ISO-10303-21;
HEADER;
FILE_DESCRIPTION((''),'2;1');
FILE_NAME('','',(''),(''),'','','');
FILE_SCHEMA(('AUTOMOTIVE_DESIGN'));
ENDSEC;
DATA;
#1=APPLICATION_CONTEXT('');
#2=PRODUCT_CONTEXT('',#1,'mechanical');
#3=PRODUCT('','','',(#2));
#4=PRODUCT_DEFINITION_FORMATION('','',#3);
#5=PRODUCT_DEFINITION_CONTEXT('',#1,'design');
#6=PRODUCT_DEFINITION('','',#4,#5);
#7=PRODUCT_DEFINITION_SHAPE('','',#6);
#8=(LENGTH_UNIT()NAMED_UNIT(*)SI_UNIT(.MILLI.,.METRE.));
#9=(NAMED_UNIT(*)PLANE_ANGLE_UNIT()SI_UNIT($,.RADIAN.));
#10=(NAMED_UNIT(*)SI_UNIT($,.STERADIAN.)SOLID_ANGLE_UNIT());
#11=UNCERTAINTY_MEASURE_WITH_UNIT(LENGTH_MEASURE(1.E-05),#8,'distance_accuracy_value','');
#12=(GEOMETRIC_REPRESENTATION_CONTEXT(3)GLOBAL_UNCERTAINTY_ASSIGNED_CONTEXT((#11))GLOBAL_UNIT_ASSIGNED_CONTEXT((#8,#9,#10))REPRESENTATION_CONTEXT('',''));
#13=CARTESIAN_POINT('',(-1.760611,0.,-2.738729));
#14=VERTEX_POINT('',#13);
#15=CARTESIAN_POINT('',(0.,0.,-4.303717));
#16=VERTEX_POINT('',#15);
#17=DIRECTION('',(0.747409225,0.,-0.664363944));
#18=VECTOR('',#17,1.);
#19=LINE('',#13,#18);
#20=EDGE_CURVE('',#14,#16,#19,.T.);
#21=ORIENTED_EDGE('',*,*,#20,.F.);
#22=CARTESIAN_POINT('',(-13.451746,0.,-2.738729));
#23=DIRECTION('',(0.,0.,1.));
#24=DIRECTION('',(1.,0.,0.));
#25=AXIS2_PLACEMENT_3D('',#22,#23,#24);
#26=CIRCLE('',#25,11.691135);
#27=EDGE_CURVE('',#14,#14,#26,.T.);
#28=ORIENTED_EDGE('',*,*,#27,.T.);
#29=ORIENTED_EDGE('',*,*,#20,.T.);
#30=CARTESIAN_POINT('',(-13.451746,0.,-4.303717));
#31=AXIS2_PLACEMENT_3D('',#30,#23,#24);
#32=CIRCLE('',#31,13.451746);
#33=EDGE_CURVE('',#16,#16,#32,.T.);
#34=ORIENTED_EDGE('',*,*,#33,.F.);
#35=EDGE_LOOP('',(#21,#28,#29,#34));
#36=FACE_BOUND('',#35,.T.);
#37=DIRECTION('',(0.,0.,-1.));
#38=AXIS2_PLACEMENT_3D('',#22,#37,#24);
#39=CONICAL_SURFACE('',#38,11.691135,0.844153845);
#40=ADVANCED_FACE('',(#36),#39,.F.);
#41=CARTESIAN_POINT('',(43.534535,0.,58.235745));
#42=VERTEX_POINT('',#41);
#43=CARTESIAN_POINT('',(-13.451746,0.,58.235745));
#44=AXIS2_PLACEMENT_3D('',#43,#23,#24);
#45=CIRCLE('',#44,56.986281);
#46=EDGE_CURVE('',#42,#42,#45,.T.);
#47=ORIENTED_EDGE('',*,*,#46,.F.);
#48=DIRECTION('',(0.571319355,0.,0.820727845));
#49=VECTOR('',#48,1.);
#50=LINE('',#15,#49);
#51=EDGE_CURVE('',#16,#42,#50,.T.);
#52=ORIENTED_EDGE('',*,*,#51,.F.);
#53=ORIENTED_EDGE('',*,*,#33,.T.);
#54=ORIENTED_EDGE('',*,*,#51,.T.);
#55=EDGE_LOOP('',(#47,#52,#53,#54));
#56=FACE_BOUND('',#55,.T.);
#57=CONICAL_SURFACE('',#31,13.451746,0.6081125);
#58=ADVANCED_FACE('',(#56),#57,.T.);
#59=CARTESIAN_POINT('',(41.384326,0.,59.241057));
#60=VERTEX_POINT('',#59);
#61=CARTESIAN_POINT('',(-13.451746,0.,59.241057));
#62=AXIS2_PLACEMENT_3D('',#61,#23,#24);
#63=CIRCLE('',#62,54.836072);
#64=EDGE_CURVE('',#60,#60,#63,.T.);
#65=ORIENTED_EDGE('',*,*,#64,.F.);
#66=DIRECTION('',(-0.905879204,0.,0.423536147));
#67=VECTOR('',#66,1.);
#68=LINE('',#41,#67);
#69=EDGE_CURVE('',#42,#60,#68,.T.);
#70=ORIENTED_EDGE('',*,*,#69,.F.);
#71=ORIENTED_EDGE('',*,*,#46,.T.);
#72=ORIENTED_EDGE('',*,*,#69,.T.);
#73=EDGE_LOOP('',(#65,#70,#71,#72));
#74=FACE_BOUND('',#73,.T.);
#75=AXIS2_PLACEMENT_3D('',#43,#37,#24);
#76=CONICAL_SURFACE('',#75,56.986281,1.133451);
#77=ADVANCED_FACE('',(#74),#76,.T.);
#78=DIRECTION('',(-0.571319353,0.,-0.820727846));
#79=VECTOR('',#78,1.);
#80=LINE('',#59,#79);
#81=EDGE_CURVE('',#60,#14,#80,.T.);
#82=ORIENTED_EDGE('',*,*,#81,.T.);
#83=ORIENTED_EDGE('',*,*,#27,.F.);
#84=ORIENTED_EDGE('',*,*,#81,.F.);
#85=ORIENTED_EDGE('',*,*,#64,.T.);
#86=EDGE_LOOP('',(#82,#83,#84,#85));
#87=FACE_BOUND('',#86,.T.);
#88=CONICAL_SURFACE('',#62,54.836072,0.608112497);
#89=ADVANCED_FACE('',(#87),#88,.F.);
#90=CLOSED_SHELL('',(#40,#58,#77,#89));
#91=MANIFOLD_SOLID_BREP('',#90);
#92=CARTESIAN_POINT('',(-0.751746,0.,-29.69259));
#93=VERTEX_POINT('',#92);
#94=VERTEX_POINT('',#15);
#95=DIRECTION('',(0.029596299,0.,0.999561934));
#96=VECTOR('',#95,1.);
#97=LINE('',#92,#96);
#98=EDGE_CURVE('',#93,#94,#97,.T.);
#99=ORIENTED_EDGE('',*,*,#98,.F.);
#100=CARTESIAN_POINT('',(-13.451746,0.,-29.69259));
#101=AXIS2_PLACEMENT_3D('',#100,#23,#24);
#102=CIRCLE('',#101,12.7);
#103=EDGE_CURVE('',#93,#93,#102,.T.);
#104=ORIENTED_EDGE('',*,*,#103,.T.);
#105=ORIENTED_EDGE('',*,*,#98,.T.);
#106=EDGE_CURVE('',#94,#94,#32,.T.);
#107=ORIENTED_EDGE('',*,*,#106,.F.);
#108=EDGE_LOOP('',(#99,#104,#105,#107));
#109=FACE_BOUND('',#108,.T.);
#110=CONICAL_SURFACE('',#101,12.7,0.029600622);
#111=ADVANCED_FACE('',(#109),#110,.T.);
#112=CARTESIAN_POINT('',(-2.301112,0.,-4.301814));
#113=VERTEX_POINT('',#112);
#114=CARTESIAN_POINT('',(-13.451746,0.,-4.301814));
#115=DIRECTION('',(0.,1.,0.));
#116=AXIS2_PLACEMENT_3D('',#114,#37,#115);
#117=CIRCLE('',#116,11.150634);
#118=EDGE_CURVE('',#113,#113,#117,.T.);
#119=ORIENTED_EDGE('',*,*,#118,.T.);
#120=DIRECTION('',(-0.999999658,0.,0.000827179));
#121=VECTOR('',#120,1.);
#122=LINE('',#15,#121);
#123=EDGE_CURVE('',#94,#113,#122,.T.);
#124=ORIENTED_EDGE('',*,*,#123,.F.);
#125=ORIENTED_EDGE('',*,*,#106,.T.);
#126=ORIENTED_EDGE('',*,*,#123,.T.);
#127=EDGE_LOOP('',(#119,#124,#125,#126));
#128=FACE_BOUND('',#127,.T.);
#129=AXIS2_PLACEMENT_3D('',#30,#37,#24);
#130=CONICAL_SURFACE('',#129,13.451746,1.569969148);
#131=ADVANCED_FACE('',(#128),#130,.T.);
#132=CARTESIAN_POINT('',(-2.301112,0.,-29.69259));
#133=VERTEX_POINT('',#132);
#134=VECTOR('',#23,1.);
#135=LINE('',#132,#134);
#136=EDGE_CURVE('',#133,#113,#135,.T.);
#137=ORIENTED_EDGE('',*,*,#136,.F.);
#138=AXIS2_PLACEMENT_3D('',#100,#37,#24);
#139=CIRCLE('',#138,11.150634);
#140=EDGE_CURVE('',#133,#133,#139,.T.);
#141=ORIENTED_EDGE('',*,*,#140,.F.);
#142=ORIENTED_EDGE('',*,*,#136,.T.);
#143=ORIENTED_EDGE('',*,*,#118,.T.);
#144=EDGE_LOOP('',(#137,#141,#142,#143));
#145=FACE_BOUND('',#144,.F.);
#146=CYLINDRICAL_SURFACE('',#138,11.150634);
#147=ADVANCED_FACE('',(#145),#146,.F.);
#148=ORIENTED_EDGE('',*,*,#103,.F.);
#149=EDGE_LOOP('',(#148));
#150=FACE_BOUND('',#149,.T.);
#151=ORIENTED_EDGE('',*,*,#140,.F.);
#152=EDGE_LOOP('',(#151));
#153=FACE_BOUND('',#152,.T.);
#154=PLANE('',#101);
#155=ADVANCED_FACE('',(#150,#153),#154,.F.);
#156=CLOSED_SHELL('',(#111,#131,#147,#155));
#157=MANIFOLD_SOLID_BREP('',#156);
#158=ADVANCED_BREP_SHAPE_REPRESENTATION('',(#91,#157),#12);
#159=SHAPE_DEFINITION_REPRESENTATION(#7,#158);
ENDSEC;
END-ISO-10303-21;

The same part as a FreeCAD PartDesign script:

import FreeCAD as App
import Part
import Sketcher
from FreeCAD import Vector
Q = App.Units.Quantity

doc = App.newDocument("Part")
params = doc.addObject("Spreadsheet::Sheet", "Params")
for row, (alias, value) in enumerate([
    ("sketch1_height", "1 in"),
    ("sketch1_length", "1 in"),
    ("sketch1_length2", "3 in"),
    ("sketch1_width", "0.5 in"),
    ("revolution_angle", "360 deg"),
    ("pocket1_length", "1 in"),
], start=1):
    params.set(f"A{row}", alias)
    params.set(f"B{row}", "=" + value)
    params.setAlias(f"B{row}", alias)

body = doc.addObject("PartDesign::Body", "Body")
body.AllowCompound = True

sketch1 = doc.addObject("Sketcher::SketchObject", "Sketch")
body.addObject(sketch1)
sketch1.AttachmentSupport = (doc.XZ_Plane, [""])
sketch1.MapMode = "FlatFace"
sketch1.addGeometry([
    Part.LineSegment(Vector(-13.451746, -4.29259, 0), Vector(-13.451746, -29.69259, 0)),
    Part.LineSegment(Vector(-13.451746, -29.69259, 0), Vector(-0.751746, -29.69259, 0)),
    Part.LineSegment(Vector(-0.751746, -29.69259, 0), Vector(0, -4.303717, 0)),
    Part.LineSegment(Vector(0, -4.303717, 0), Vector(-13.451746, -4.29259, 0)),
    Part.LineSegment(Vector(-1.760611, -2.738729, 0), Vector(0, -4.303717, 0)),
    Part.LineSegment(Vector(0, -4.303717, 0), Vector(43.534535, 58.235745, 0)),
    Part.LineSegment(Vector(43.534535, 58.235745, 0), Vector(41.384326, 59.241057, 0)),
    Part.LineSegment(Vector(41.384326, 59.241057, 0), Vector(-1.760611, -2.738729, 0)),
], False)
sketch1.addGeometry(Part.LineSegment(Vector(-13.451746, -29.69259, 0), Vector(-13.451746, 59.241057, 0)), True)
sketch1.addConstraint([
    Sketcher.Constraint("Coincident", 0, 2, 1, 1),
    Sketcher.Constraint("Coincident", 1, 2, 2, 1),
    Sketcher.Constraint("Coincident", 2, 2, 3, 1),
    Sketcher.Constraint("Coincident", 3, 2, 0, 1),
    Sketcher.Constraint("Coincident", 4, 2, 5, 1),
    Sketcher.Constraint("Coincident", 5, 2, 6, 1),
    Sketcher.Constraint("Coincident", 6, 2, 7, 1),
    Sketcher.Constraint("Coincident", 7, 2, 4, 1),
    Sketcher.Constraint("Vertical", 0),
    Sketcher.Constraint("Horizontal", 1),
    Sketcher.Constraint("Vertical", 8),
    Sketcher.Constraint("Coincident", 4, 2, 2, 2),
    Sketcher.Constraint("Coincident", 8, 1, 0, 2),
    Sketcher.Constraint("PointOnObject", 2, 2, -2),
    Sketcher.Constraint("Parallel", 5, 7),
    Sketcher.Constraint("Horizontal", 6, 2, 8, 2),
    Sketcher.Constraint("DistanceY", 0, 2, 0, 1, Q("1 in")),
    Sketcher.Constraint("Distance", 2, Q("1 in")),
    Sketcher.Constraint("Distance", 5, Q("3 in")),
    Sketcher.Constraint("DistanceX", 1, 1, 1, 2, Q("0.5 in")),
    Sketcher.Constraint("Distance", 3, Q("13.451751 mm")),
    Sketcher.Constraint("Distance", 4, Q("2.355619 mm")),
    Sketcher.Constraint("DistanceY", 8, 1, 8, 2, Q("88.933647 mm")),
    Sketcher.Constraint("DistanceY", 0, 2, -1, 1, Q("29.69259 mm")),
    Sketcher.Constraint("DistanceX", 7, 2, -1, 1, Q("1.760611 mm")),
    Sketcher.Constraint("DistanceX", 3, 2, 5, 2, Q("56.986281 mm")),
])
sketch1.setExpression("Constraints[16]", "Params.sketch1_height")
sketch1.setExpression("Constraints[17]", "Params.sketch1_length")
sketch1.setExpression("Constraints[18]", "Params.sketch1_length2")
sketch1.setExpression("Constraints[19]", "Params.sketch1_width")
revolution = doc.addObject("PartDesign::Revolution", "Revolution")
body.addObject(revolution)
revolution.Profile = sketch1
revolution.ReferenceAxis = (sketch1, ["Axis0"])
revolution.setExpression("Angle", "Params.revolution_angle")

sketch2 = doc.addObject("Sketcher::SketchObject", "Sketch001")
body.addObject(sketch2)
sketch2.AttachmentSupport = (doc.XY_Plane, [""])
sketch2.MapMode = "FlatFace"
sketch2.AttachmentOffset = App.Placement(Vector(0, 0, -29.69259), App.Rotation())
sketch2.addGeometry(Part.Circle(Vector(-13.451746, 0, 0), Vector(0, 0, 1), 11.150634), False)
sketch2.addConstraint([
    Sketcher.Constraint("PointOnObject", 0, 3, -1),
    Sketcher.Constraint("Diameter", 0, Q("22.301268 mm")),
    Sketcher.Constraint("DistanceX", 0, 3, -1, 1, Q("13.451746 mm")),
])
pocket1 = doc.addObject("PartDesign::Pocket", "Pocket")
body.addObject(pocket1)
pocket1.Profile = sketch2
pocket1.setExpression("Length", "Params.pocket1_length")
pocket1.Reversed = True

doc.recompute()
